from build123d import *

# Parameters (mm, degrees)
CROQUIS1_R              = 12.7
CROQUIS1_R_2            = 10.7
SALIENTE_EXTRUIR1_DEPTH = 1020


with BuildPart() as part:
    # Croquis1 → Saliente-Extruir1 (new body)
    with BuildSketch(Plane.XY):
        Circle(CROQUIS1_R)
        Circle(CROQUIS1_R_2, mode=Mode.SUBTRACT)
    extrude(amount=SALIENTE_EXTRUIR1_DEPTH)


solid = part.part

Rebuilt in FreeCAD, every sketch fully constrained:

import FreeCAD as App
import Part
import Sketcher
from FreeCAD import Vector

doc = App.newDocument("Part")
params = doc.addObject("Spreadsheet::Sheet", "Params")
for row, (alias, value) in enumerate([
    ("sketch1_diameter", "25.4 mm"),
    ("sketch1_diameter2", "21.4 mm"),
    ("pad1_length", "1020 mm"),
], start=1):
    params.set(f"A{row}", alias)
    params.set(f"B{row}", "=" + value)
    params.setAlias(f"B{row}", alias)

body = doc.addObject("PartDesign::Body", "Body")

# Sketch on XY plane
sketch1 = doc.addObject("Sketcher::SketchObject", "Sketch")
body.addObject(sketch1)
sketch1.AttachmentSupport = (doc.XY_Plane, [""])
sketch1.MapMode = "FlatFace"
sketch1.addGeometry(Part.Circle(Vector(0, 0, 0), Vector(0, 0, 1), 12.7), False)
sketch1.addGeometry(Part.Circle(Vector(0, 0, 0), Vector(0, 0, 1), 10.7), False)
sketch1.addConstraint(Sketcher.Constraint("Coincident", 0, 3, -1, 1))
sketch1.addConstraint(Sketcher.Constraint("Coincident", 1, 3, -1, 1))
sketch1.addConstraint(Sketcher.Constraint("Diameter", 0, 25.4))
sketch1.addConstraint(Sketcher.Constraint("Diameter", 1, 21.4))
sketch1.setExpression("Constraints[2]", "Params.sketch1_diameter")
sketch1.setExpression("Constraints[3]", "Params.sketch1_diameter2")
pad1 = doc.addObject("PartDesign::Pad", "Pad")
body.addObject(pad1)
pad1.Profile = sketch1
pad1.setExpression("Length", "Params.pad1_length")

doc.recompute()
